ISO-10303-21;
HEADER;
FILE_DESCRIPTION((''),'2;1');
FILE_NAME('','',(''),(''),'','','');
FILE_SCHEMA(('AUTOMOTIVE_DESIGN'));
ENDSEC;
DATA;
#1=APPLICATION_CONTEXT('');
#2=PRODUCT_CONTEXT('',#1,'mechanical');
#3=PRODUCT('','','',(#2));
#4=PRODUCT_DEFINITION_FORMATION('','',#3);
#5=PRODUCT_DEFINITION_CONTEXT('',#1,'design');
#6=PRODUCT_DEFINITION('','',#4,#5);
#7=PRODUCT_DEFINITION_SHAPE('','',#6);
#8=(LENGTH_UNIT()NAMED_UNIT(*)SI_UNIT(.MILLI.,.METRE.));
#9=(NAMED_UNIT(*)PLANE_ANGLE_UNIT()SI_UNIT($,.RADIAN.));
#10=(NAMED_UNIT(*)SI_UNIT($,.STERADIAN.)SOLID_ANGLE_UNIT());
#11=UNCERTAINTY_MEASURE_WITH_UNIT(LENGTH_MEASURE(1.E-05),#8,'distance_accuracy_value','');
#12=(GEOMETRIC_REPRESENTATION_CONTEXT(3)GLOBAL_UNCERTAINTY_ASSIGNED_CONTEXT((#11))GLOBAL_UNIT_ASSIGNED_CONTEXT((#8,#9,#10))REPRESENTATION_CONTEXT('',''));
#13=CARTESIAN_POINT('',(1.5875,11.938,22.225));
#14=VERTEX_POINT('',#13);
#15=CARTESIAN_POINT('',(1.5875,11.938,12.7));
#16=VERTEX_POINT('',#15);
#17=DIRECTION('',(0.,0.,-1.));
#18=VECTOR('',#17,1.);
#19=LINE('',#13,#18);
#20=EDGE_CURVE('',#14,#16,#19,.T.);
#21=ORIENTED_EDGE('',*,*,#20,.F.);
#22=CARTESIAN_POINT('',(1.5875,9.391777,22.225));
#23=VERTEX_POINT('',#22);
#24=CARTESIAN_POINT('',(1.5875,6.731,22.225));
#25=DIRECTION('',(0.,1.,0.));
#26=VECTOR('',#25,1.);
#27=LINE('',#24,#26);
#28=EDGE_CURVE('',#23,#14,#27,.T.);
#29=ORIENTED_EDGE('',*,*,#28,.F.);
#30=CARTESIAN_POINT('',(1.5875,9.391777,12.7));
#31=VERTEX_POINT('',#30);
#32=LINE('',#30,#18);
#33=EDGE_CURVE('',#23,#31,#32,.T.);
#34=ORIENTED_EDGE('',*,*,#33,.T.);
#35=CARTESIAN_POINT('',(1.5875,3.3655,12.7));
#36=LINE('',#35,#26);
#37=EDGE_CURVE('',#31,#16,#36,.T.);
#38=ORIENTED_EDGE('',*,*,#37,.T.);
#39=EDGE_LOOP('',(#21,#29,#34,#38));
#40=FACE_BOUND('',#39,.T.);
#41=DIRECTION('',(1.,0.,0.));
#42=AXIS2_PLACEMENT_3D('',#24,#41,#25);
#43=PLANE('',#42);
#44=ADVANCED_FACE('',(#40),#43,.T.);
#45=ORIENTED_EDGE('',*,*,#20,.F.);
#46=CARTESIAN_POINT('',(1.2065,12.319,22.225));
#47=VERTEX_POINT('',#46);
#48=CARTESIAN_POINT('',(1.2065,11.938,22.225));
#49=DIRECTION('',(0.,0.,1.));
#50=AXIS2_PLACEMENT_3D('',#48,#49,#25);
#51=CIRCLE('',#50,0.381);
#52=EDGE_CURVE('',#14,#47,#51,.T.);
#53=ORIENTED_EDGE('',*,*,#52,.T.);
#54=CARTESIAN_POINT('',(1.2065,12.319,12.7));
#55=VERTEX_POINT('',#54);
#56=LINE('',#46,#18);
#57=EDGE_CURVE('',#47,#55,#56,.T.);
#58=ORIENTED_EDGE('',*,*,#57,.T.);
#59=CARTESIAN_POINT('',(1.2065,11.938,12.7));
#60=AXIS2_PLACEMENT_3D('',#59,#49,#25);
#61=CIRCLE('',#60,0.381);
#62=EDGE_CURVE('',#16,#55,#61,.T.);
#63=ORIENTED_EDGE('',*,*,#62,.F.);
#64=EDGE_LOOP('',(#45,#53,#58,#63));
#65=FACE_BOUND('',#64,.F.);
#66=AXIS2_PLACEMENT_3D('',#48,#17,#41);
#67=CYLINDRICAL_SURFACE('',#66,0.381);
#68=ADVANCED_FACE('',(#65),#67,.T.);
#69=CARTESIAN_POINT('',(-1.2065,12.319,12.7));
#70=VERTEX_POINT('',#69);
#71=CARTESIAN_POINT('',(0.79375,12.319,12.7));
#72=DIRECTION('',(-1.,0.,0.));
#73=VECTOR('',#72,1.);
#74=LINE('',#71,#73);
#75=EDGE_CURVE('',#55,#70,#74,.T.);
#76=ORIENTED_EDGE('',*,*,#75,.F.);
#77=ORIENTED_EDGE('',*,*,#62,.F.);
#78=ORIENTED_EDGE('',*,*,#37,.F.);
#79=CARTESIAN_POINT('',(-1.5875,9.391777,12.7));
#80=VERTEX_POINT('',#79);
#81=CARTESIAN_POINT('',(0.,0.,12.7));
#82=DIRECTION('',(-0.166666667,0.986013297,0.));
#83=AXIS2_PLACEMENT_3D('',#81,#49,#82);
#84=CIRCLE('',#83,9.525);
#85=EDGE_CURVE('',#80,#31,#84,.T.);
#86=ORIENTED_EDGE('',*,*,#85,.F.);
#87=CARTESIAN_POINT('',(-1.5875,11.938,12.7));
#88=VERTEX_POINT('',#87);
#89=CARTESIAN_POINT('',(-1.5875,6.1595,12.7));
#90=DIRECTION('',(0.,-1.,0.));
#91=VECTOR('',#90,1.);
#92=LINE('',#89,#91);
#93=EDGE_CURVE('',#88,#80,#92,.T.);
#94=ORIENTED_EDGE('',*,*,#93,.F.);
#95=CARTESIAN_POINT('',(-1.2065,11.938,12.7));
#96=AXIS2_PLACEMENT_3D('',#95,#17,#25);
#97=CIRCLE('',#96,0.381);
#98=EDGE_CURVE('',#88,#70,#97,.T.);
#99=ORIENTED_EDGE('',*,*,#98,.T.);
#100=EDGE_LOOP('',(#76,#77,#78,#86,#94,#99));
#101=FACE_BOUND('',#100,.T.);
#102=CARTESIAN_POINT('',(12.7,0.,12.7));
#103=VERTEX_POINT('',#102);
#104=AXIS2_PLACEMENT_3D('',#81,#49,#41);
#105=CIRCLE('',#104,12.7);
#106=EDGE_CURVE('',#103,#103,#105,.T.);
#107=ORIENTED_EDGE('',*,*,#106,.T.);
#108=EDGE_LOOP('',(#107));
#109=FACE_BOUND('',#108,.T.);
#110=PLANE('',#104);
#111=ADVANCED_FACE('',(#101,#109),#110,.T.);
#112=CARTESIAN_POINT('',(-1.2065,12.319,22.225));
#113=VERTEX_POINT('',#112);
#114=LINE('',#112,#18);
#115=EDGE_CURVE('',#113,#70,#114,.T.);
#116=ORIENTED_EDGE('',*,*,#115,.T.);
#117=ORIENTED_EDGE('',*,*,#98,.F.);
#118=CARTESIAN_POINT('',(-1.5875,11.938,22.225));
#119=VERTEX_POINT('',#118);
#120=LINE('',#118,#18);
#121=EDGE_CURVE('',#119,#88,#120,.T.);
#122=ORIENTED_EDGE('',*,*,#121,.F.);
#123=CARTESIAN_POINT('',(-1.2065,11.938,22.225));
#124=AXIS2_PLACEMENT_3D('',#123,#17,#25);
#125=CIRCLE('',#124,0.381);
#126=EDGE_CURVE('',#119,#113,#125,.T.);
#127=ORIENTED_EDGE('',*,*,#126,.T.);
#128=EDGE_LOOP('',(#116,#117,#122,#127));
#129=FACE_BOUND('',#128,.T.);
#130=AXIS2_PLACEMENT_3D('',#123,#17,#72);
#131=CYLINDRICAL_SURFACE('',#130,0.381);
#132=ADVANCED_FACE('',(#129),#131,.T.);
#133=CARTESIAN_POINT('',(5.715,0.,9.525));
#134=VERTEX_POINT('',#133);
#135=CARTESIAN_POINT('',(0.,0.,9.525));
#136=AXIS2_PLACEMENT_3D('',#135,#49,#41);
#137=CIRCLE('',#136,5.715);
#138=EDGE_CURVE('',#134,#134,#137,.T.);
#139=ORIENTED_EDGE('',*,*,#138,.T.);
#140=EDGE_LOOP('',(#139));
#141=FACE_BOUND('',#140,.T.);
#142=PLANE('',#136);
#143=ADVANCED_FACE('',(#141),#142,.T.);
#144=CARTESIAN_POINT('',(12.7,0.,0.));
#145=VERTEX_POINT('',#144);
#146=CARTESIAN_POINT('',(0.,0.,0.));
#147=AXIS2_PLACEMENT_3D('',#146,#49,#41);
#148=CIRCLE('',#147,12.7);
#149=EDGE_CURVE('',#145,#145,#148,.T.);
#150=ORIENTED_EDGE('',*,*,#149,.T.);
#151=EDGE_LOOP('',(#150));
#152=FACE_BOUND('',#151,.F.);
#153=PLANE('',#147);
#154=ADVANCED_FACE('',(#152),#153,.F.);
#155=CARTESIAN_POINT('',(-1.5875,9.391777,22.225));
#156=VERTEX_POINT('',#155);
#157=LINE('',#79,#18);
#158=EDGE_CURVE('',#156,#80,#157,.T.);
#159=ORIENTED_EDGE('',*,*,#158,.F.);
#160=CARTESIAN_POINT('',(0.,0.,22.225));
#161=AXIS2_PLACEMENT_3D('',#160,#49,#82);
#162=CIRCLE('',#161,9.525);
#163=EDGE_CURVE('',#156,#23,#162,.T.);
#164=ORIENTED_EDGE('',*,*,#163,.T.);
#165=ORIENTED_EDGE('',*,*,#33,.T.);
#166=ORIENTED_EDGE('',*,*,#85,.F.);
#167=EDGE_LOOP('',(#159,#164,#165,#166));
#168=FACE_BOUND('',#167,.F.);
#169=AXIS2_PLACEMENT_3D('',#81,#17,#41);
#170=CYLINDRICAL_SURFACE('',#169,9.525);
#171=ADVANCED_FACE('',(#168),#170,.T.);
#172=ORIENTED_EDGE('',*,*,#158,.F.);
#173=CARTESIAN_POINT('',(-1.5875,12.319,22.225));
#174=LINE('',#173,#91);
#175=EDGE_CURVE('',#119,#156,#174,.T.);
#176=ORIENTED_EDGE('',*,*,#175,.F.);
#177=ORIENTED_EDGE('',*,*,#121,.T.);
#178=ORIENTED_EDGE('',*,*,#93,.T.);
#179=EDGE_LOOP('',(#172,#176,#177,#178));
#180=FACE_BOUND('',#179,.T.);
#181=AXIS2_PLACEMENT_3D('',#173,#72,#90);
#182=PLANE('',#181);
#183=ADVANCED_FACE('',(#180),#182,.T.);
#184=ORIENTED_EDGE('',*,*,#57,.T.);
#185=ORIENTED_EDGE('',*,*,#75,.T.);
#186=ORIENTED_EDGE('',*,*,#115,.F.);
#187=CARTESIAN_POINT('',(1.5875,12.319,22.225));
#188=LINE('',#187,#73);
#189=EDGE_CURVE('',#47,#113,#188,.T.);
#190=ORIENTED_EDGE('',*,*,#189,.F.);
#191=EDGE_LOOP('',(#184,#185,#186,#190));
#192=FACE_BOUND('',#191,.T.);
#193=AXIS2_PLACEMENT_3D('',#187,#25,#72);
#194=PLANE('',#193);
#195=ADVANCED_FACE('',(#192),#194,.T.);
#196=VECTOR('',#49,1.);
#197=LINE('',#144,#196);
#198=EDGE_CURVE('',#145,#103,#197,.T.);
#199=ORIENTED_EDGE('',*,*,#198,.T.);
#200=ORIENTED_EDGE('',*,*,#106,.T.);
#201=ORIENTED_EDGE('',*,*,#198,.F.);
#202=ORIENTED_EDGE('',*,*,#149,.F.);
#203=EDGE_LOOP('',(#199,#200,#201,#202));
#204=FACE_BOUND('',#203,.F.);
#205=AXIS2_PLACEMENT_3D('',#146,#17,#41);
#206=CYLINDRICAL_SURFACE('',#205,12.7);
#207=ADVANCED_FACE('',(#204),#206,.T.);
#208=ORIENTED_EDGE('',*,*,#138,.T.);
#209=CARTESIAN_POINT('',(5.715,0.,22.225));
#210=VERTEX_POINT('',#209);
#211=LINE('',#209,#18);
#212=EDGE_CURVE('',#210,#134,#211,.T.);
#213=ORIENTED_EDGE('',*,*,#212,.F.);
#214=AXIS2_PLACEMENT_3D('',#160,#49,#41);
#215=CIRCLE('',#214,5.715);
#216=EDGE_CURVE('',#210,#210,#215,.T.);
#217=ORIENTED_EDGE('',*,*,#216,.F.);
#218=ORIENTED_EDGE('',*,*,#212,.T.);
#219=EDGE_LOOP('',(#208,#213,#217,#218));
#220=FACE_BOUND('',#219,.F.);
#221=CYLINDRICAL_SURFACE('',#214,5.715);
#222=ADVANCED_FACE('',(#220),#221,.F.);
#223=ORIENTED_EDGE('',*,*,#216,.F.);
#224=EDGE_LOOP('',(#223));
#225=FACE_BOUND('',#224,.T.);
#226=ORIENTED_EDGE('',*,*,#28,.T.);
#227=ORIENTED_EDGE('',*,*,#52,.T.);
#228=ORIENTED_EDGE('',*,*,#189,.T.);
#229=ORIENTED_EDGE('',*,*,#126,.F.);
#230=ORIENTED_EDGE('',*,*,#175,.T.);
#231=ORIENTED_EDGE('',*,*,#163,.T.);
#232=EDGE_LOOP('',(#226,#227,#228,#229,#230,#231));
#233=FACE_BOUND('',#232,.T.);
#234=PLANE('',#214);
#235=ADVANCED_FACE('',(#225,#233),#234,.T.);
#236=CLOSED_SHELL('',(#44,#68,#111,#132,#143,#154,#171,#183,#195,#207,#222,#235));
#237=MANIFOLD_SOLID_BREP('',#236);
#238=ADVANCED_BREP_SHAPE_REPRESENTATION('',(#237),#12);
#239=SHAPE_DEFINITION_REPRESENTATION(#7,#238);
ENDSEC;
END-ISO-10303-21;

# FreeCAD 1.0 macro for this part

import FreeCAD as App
import Part
import Sketcher
from FreeCAD import Vector
Q = App.Units.Quantity


def edges_at(feature, points):
    """Names of the edges that pass closest to the given points."""
    edges = feature.Shape.Edges
    near = lambda p: min(range(len(edges)), key=lambda i: edges[i].distToShape(Part.Vertex(*p))[0])
    return sorted({f"Edge{near(p) + 1}" for p in points})


def add_polygon(sketch, points):
    """Adds a closed chain of lines whose ends are joined by coincident constraints."""
    first, n = sketch.GeometryCount, len(points)
    for a, b in zip(points, points[1:] + points[:1]):
        sketch.addGeometry(Part.LineSegment(App.Vector(*a, 0), App.Vector(*b, 0)), False)
    for i in range(n):
        sketch.addConstraint(Sketcher.Constraint("Coincident", first + i, 2, first + (i + 1) % n, 1))

doc = App.newDocument("Part")
params = doc.addObject("Spreadsheet::Sheet", "Params")
for row, (alias, value) in enumerate([
    ("sketch1_diameter", "1 in"),
    ("pad1_length", "0.5 in"),
    ("sketch2_diameter", "0.75 in"),
    ("pad2_length", "0.375 in"),
    ("sketch3_height", "0.22 in"),
    ("sketch3_width", "0.125 in"),
    ("pad3_length", "0.4 in"),
    ("sketch4_diameter", "0.45 in"),
    ("pocket1_length", "0.5 in"),
    ("fillet_radius", "0.015 in"),
], start=1):
    params.set(f"A{row}", alias)
    params.set(f"B{row}", "=" + value)
    params.setAlias(f"B{row}", alias)

body = doc.addObject("PartDesign::Body", "Body")

# Sketch on XY plane
sketch1 = body.newObject("Sketcher::SketchObject", "Sketch")
sketch1.AttachmentSupport = (doc.getObject("XY_Plane"), [""])
sketch1.MapMode = "FlatFace"
sketch1.addGeometry(Part.Circle(Vector(0, 0, 0), Vector(0, 0, 1), 13), False)
sketch1.addConstraint([
    Sketcher.Constraint("Coincident", 0, 3, -1, 1),
    Sketcher.Constraint("Diameter", 0, Q("1 in")),
])
sketch1.setExpression("Constraints[1]", "Params.sketch1_diameter")
pad1 = body.newObject("PartDesign::Pad", "Pad")
pad1.Profile = sketch1
pad1.setExpression("Length", "Params.pad1_length")

# Sketch on XY plane
sketch2 = body.newObject("Sketcher::SketchObject", "Sketch001")
sketch2.AttachmentSupport = (doc.getObject("XY_Plane"), [""])
sketch2.MapMode = "FlatFace"
sketch2.AttachmentOffset = App.Placement(Vector(0, 0, 0.5 * 25.4), App.Rotation())
sketch2.addGeometry(Part.Circle(Vector(0, 0, 0), Vector(0, 0, 1), 10), False)
sketch2.addConstraint([
    Sketcher.Constraint("Coincident", 0, 3, -1, 1),
    Sketcher.Constraint("Diameter", 0, Q("0.75 in")),
])
sketch2.setExpression("Constraints[1]", "Params.sketch2_diameter")
pad2 = body.newObject("PartDesign::Pad", "Pad001")
pad2.Profile = sketch2
pad2.setExpression("Length", "Params.pad2_length")

# Sketch on XY plane
sketch3 = body.newObject("Sketcher::SketchObject", "Sketch002")
sketch3.AttachmentSupport = (doc.getObject("XY_Plane"), [""])
sketch3.MapMode = "FlatFace"
sketch3.AttachmentOffset = App.Placement(Vector(0, 0, 0.875 * 25.4), App.Rotation())
add_polygon(sketch3, [(-1.6, 6.7), (1.6, 6.7), (1.6, 12.3), (-1.6, 12.3)])  # lines 0-3
sketch3.addConstraint([
    Sketcher.Constraint("Horizontal", 0),
    Sketcher.Constraint("Vertical", 1),
    Sketcher.Constraint("Horizontal", 2),
    Sketcher.Constraint("Vertical", 3),
    Sketcher.Constraint("DistanceY", 1, 1, 1, 2, Q("0.22 in")),
    Sketcher.Constraint("DistanceX", 0, 1, 0, 2, Q("0.125 in")),
    Sketcher.Constraint("DistanceX", -1, 1, 0, 2, Q("0.0625 in")),
    Sketcher.Constraint("DistanceY", -1, 1, 0, 2, Q("0.265 in")),
])
sketch3.setExpression("Constraints[8]", "Params.sketch3_height")
sketch3.setExpression("Constraints[9]", "Params.sketch3_width")
pad3 = body.newObject("PartDesign::Pad", "Pad002")
pad3.Profile = sketch3
pad3.setExpression("Length", "Params.pad3_length")
pad3.Reversed = True

# Sketch on XY plane
sketch4 = body.newObject("Sketcher::SketchObject", "Sketch003")
sketch4.AttachmentSupport = (doc.getObject("XY_Plane"), [""])
sketch4.MapMode = "FlatFace"
sketch4.AttachmentOffset = App.Placement(Vector(0, 0, 0.875 * 25.4), App.Rotation())
sketch4.addGeometry(Part.Circle(Vector(0, 0, 0), Vector(0, 0, 1), 6), False)
sketch4.addConstraint([
    Sketcher.Constraint("Coincident", 0, 3, -1, 1),
    Sketcher.Constraint("Diameter", 0, Q("0.45 in")),
])
sketch4.setExpression("Constraints[1]", "Params.sketch4_diameter")
pocket1 = body.newObject("PartDesign::Pocket", "Pocket")
pocket1.Profile = sketch4
pocket1.setExpression("Length", "Params.pocket1_length")
doc.recompute()

fillet = body.newObject("PartDesign::Fillet", "Fillet")
fillet.Base = (pocket1, edges_at(pocket1, [(1.587, 12.319, 17.462), (-1.587, 12.319, 17.462)]))
fillet.setExpression("Radius", "Params.fillet_radius")

doc.recompute()
